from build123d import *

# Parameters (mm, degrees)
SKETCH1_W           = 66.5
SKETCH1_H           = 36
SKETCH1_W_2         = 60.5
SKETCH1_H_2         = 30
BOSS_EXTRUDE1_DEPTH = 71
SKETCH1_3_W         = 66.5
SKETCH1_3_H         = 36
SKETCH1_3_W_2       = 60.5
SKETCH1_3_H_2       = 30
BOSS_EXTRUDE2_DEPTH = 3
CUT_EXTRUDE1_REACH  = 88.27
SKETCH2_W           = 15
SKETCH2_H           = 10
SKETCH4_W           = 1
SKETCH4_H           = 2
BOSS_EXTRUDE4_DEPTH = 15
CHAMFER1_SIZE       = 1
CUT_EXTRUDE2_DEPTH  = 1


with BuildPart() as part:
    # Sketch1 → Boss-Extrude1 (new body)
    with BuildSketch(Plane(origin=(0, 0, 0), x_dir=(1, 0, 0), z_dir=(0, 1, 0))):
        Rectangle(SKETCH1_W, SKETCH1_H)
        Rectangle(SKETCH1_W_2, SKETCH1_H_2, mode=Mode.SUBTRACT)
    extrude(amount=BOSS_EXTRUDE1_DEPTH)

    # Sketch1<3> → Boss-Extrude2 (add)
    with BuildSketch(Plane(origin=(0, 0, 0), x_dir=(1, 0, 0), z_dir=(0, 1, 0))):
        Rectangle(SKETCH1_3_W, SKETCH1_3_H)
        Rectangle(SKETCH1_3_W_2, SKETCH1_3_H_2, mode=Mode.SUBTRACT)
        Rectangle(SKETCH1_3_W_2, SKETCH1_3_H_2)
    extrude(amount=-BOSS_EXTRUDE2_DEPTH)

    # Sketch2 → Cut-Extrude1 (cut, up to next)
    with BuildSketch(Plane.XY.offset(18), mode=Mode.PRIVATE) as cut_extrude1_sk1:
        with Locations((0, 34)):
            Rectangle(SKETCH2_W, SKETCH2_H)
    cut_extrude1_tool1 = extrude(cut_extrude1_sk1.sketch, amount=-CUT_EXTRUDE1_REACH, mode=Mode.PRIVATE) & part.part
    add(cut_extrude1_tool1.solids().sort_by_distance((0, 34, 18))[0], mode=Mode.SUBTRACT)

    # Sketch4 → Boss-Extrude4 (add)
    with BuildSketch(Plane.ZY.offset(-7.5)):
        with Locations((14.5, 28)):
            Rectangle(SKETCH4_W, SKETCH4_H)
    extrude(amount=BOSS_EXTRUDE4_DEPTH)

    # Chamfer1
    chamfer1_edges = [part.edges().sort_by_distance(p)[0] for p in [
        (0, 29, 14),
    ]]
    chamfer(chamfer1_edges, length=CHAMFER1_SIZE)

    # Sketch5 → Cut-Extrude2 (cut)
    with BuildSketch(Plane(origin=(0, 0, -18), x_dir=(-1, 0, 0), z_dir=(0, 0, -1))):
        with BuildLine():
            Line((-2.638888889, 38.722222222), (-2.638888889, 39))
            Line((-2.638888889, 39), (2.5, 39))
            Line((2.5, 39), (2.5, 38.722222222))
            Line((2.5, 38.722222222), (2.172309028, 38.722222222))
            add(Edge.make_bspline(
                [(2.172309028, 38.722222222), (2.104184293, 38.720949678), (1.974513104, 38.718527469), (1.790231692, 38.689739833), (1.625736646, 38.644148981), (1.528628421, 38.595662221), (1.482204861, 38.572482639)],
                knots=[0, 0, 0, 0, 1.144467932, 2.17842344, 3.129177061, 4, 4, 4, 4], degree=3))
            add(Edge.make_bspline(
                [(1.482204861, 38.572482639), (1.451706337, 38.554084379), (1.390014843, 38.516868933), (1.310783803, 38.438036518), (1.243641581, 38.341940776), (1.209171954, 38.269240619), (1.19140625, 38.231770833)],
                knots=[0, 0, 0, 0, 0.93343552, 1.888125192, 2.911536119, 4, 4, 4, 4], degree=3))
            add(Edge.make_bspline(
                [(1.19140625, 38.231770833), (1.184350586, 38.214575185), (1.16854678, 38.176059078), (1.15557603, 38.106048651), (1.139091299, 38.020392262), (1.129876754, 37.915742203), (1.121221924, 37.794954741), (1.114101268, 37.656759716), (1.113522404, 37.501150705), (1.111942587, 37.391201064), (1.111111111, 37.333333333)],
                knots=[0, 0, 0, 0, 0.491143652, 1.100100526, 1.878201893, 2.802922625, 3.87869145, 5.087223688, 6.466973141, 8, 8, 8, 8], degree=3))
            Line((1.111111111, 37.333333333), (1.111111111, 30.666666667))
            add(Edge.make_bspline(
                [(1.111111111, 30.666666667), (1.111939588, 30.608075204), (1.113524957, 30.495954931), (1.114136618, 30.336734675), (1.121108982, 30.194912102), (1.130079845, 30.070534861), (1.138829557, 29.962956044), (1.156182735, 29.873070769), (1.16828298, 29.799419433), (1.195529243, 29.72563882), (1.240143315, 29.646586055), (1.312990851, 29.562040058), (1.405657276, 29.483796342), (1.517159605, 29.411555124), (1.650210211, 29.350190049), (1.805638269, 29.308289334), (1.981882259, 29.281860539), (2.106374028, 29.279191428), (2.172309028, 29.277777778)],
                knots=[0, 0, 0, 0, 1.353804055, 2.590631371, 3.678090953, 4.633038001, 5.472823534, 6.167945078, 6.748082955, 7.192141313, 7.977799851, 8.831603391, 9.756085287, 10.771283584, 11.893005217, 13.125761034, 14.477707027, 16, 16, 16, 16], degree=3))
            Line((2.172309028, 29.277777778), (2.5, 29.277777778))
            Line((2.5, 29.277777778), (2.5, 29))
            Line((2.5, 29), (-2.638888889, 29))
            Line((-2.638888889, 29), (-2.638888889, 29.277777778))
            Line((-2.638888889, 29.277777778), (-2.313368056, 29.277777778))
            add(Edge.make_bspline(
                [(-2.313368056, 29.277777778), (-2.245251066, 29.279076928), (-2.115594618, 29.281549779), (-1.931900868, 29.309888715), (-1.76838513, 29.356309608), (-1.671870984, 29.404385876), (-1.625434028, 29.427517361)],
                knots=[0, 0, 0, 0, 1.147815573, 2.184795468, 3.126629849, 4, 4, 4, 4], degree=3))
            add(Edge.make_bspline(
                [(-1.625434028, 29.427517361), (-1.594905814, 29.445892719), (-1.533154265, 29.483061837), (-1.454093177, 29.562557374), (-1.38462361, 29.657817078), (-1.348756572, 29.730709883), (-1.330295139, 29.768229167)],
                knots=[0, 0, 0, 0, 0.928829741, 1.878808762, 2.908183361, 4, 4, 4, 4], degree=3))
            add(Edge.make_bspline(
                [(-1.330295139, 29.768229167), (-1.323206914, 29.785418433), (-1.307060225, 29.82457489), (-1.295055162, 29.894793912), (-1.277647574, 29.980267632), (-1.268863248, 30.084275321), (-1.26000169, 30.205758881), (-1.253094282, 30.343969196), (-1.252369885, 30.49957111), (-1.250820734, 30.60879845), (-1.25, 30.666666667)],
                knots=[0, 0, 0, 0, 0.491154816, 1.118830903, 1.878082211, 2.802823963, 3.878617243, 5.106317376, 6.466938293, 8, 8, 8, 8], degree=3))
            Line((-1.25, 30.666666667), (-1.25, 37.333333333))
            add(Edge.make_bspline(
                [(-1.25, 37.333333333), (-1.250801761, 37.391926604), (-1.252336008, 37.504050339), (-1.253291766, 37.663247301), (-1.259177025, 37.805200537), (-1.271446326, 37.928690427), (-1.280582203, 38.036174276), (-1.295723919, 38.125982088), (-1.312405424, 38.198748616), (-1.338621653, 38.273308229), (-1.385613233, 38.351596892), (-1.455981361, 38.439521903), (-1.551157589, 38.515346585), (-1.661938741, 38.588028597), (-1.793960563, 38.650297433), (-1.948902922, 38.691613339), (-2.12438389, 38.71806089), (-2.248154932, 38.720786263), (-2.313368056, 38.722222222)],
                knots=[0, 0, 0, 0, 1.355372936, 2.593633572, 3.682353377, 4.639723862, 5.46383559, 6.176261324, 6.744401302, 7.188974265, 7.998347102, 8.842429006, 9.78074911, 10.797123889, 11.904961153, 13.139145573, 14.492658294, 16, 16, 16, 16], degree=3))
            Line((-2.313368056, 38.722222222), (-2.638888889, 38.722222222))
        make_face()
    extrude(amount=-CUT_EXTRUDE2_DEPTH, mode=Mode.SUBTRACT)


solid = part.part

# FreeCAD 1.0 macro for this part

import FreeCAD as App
import Part
import Sketcher
from FreeCAD import Vector
Q = App.Units.Quantity


def edges_at(feature, points):
    """Names of the edges that pass closest to the given points."""
    edges = feature.Shape.Edges
    near = lambda p: min(range(len(edges)), key=lambda i: edges[i].distToShape(Part.Vertex(*p))[0])
    return sorted({f"Edge{near(p) + 1}" for p in points})

doc = App.newDocument("Part")
body = doc.addObject("PartDesign::Body", "Body")

# Sketch on XZ plane
sketch1 = doc.addObject("Sketcher::SketchObject", "Sketch")
body.addObject(sketch1)
sketch1.AttachmentSupport = (doc.XZ_Plane, [""])
sketch1.MapMode = "FlatFace"
sketch1.addGeometry([
    Part.LineSegment(Vector(-33.25, -18, 0), Vector(-33.25, 18, 0)),  # 0
    Part.LineSegment(Vector(-33.25, 18, 0), Vector(33.25, 18, 0)),  # 1
    Part.LineSegment(Vector(33.25, 18, 0), Vector(33.25, -18, 0)),  # 2
    Part.LineSegment(Vector(33.25, -18, 0), Vector(-33.25, -18, 0)),  # 3
    Part.LineSegment(Vector(30.25, 15, 0), Vector(-30.25, 15, 0)),  # 4
    Part.LineSegment(Vector(-30.25, 15, 0), Vector(-30.25, -15, 0)),  # 5
    Part.LineSegment(Vector(-30.25, -15, 0), Vector(30.25, -15, 0)),  # 6
    Part.LineSegment(Vector(30.25, -15, 0), Vector(30.25, 15, 0)),  # 7
], False)
sketch1.addConstraint([
    Sketcher.Constraint("Coincident", 0, 2, 1, 1),
    Sketcher.Constraint("Coincident", 1, 2, 2, 1),
    Sketcher.Constraint("Coincident", 2, 2, 3, 1),
    Sketcher.Constraint("Coincident", 3, 2, 0, 1),
    Sketcher.Constraint("Coincident", 4, 2, 5, 1),
    Sketcher.Constraint("Coincident", 5, 2, 6, 1),
    Sketcher.Constraint("Coincident", 6, 2, 7, 1),
    Sketcher.Constraint("Coincident", 7, 2, 4, 1),
    Sketcher.Constraint("Vertical", 0),
    Sketcher.Constraint("Horizontal", 1),
    Sketcher.Constraint("Vertical", 2),
    Sketcher.Constraint("Horizontal", 3),
    Sketcher.Constraint("Horizontal", 4),
    Sketcher.Constraint("Vertical", 5),
    Sketcher.Constraint("Horizontal", 6),
    Sketcher.Constraint("Vertical", 7),
    Sketcher.Constraint("Symmetric", 0, 2, 2, 2, -1, 1),
    Sketcher.Constraint("Symmetric", 4, 2, 6, 2, -1, 1),
    Sketcher.Constraint("DistanceY", 0, 1, 0, 2, Q("36 mm")),
    Sketcher.Constraint("DistanceY", 5, 2, 5, 1, Q("30 mm")),
    Sketcher.Constraint("DistanceX", 1, 1, 1, 2, Q("66.5 mm")),
    Sketcher.Constraint("DistanceX", 4, 2, 4, 1, Q("60.5 mm")),
])
pad1 = doc.addObject("PartDesign::Pad", "Pad")
body.addObject(pad1)
pad1.Profile = sketch1
pad1.Length = 71
pad1.Reversed = True

# Sketch on XZ plane
sketch2 = doc.addObject("Sketcher::SketchObject", "Sketch001")
body.addObject(sketch2)
sketch2.AttachmentSupport = (doc.XZ_Plane, [""])
sketch2.MapMode = "FlatFace"
sketch2.addGeometry([
    Part.LineSegment(Vector(-33.25, -18, 0), Vector(-33.25, 18, 0)),
    Part.LineSegment(Vector(-33.25, 18, 0), Vector(33.25, 18, 0)),
    Part.LineSegment(Vector(33.25, 18, 0), Vector(33.25, -18, 0)),
    Part.LineSegment(Vector(33.25, -18, 0), Vector(-33.25, -18, 0)),
], False)
sketch2.addConstraint([
    Sketcher.Constraint("Coincident", 0, 2, 1, 1),
    Sketcher.Constraint("Coincident", 1, 2, 2, 1),
    Sketcher.Constraint("Coincident", 2, 2, 3, 1),
    Sketcher.Constraint("Coincident", 3, 2, 0, 1),
    Sketcher.Constraint("Vertical", 0),
    Sketcher.Constraint("Horizontal", 1),
    Sketcher.Constraint("Vertical", 2),
    Sketcher.Constraint("Horizontal", 3),
    Sketcher.Constraint("Symmetric", 0, 2, 2, 2, -1, 1),
    Sketcher.Constraint("DistanceY", 0, 1, 0, 2, Q("36 mm")),
    Sketcher.Constraint("DistanceX", 1, 1, 1, 2, Q("66.5 mm")),
])
pad2 = doc.addObject("PartDesign::Pad", "Pad001")
body.addObject(pad2)
pad2.Profile = sketch2
pad2.Length = 3

# Sketch on XY plane
sketch3 = doc.addObject("Sketcher::SketchObject", "Sketch002")
body.addObject(sketch3)
sketch3.AttachmentSupport = (doc.XY_Plane, [""])
sketch3.MapMode = "FlatFace"
sketch3.AttachmentOffset = App.Placement(Vector(0, 0, 18), App.Rotation())
sketch3.addGeometry([
    Part.LineSegment(Vector(-7.5, 39, 0), Vector(-7.5, 29, 0)),
    Part.LineSegment(Vector(-7.5, 29, 0), Vector(7.5, 29, 0)),
    Part.LineSegment(Vector(7.5, 29, 0), Vector(7.5, 39, 0)),
    Part.LineSegment(Vector(7.5, 39, 0), Vector(-7.5, 39, 0)),
], False)
sketch3.addConstraint([
    Sketcher.Constraint("Coincident", 0, 2, 1, 1),
    Sketcher.Constraint("Coincident", 1, 2, 2, 1),
    Sketcher.Constraint("Coincident", 2, 2, 3, 1),
    Sketcher.Constraint("Coincident", 3, 2, 0, 1),
    Sketcher.Constraint("Vertical", 0),
    Sketcher.Constraint("Horizontal", 1),
    Sketcher.Constraint("Vertical", 2),
    Sketcher.Constraint("Horizontal", 3),
    Sketcher.Constraint("DistanceX", 1, 1, 1, 2, Q("15 mm")),
    Sketcher.Constraint("DistanceY", 0, 2, 0, 1, Q("10 mm")),
    Sketcher.Constraint("DistanceY", -1, 1, 0, 2, Q("29 mm")),
    Sketcher.Constraint("DistanceX", 0, 2, -1, 1, Q("7.5 mm")),
])
pocket1 = doc.addObject("PartDesign::Pocket", "Pocket")
body.addObject(pocket1)
pocket1.Profile = sketch3
pocket1.Type = "UpToFirst"

# Sketch on YZ plane
sketch4 = doc.addObject("Sketcher::SketchObject", "Sketch003")
body.addObject(sketch4)
sketch4.AttachmentSupport = (doc.YZ_Plane, [""])
sketch4.MapMode = "FlatFace"
sketch4.AttachmentOffset = App.Placement(Vector(0, 0, 7.5), App.Rotation())
sketch4.addGeometry([
    Part.LineSegment(Vector(29, 14, 0), Vector(27, 14, 0)),
    Part.LineSegment(Vector(27, 14, 0), Vector(27, 15, 0)),
    Part.LineSegment(Vector(27, 15, 0), Vector(29, 15, 0)),
    Part.LineSegment(Vector(29, 15, 0), Vector(29, 14, 0)),
], False)
sketch4.addConstraint([
    Sketcher.Constraint("Coincident", 0, 2, 1, 1),
    Sketcher.Constraint("Coincident", 1, 2, 2, 1),
    Sketcher.Constraint("Coincident", 2, 2, 3, 1),
    Sketcher.Constraint("Coincident", 3, 2, 0, 1),
    Sketcher.Constraint("Horizontal", 0),
    Sketcher.Constraint("Vertical", 1),
    Sketcher.Constraint("Horizontal", 2),
    Sketcher.Constraint("Vertical", 3),
    Sketcher.Constraint("DistanceX", 0, 2, 0, 1, Q("2 mm")),
    Sketcher.Constraint("DistanceY", 1, 1, 1, 2, Q("1 mm")),
    Sketcher.Constraint("DistanceX", -1, 1, 0, 2, Q("27 mm")),
    Sketcher.Constraint("DistanceY", -1, 1, 0, 2, Q("14 mm")),
])
pad3 = doc.addObject("PartDesign::Pad", "Pad002")
body.addObject(pad3)
pad3.Profile = sketch4
pad3.Length = 15
pad3.Reversed = True
doc.recompute()

chamfer = doc.addObject("PartDesign::Chamfer", "Chamfer")
body.addObject(chamfer)
chamfer.Base = (pad3, edges_at(pad3, [(0, 29, 14)]))
chamfer.Size = 1

# Sketch on XY plane
sketch5 = doc.addObject("Sketcher::SketchObject", "Sketch004")
body.addObject(sketch5)
sketch5.AttachmentSupport = (doc.XY_Plane, [""])
sketch5.MapMode = "FlatFace"
sketch5.AttachmentOffset = App.Placement(Vector(0, 0, -18), App.Rotation())
sketch5.addGeometry([
    Part.LineSegment(Vector(2.638889, 39, 0), Vector(2.638889, 38.722222, 0)),  # 0
    Part.LineSegment(Vector(2.638889, 38.722222, 0), Vector(2.313368, 38.722222, 0)),  # 1
    Part.BSplineCurve([Vector(1.25, 37.333333, 0), Vector(1.250802, 37.391927, 0), Vector(1.252336, 37.50405, 0), Vector(1.253292, 37.663247, 0), Vector(1.259177, 37.805201, 0), Vector(1.271446, 37.92869, 0), Vector(1.280582, 38.036174, 0), Vector(1.295724, 38.125982, 0), Vector(1.312405, 38.198749, 0), Vector(1.338622, 38.273308, 0), Vector(1.385613, 38.351597, 0), Vector(1.455981, 38.439522, 0), Vector(1.551158, 38.515347, 0), Vector(1.661939, 38.588029, 0), Vector(1.793961, 38.650297, 0), Vector(1.948903, 38.691613, 0), Vector(2.124384, 38.718061, 0), Vector(2.248155, 38.720786, 0), Vector(2.313368, 38.722222, 0)], [4, 1, 1, 1, 1, 1, 1, 1, 1, 1, 1, 1, 1, 1, 1, 1, 4], [0, 1.355372936, 2.593633572, 3.682353377, 4.639723862, 5.46383559, 6.176261324, 6.744401302, 7.188974265, 7.998347102, 8.842429006, 9.78074911, 10.797123889, 11.904961153, 13.139145573, 14.492658294, 16], False, 3, [1, 1, 1, 1, 1, 1, 1, 1, 1, 1, 1, 1, 1, 1, 1, 1, 1, 1, 1], False),  # 2
    Part.LineSegment(Vector(1.25, 37.333333, 0), Vector(1.25, 30.666667, 0)),  # 3
    Part.BSplineCurve([Vector(1.330295, 29.768229, 0), Vector(1.323207, 29.785418, 0), Vector(1.30706, 29.824575, 0), Vector(1.295055, 29.894794, 0), Vector(1.277648, 29.980268, 0), Vector(1.268863, 30.084275, 0), Vector(1.260002, 30.205759, 0), Vector(1.253094, 30.343969, 0), Vector(1.25237, 30.499571, 0), Vector(1.250821, 30.608798, 0), Vector(1.25, 30.666667, 0)], [4, 1, 1, 1, 1, 1, 1, 1, 4], [0, 0.491154816, 1.118830903, 1.878082211, 2.802823963, 3.878617243, 5.106317376, 6.466938293, 8], False, 3, [1, 1, 1, 1, 1, 1, 1, 1, 1, 1, 1], False),  # 4
    Part.BSplineCurve([Vector(1.625434, 29.427517, 0), Vector(1.594906, 29.445893, 0), Vector(1.533154, 29.483062, 0), Vector(1.454093, 29.562557, 0), Vector(1.384624, 29.657817, 0), Vector(1.348757, 29.73071, 0), Vector(1.330295, 29.768229, 0)], [4, 1, 1, 1, 4], [0, 0.928829741, 1.878808762, 2.908183361, 4], False, 3, [1, 1, 1, 1, 1, 1, 1], False),  # 5
    Part.BSplineCurve([Vector(2.313368, 29.277778, 0), Vector(2.245251, 29.279077, 0), Vector(2.115595, 29.28155, 0), Vector(1.931901, 29.309889, 0), Vector(1.768385, 29.35631, 0), Vector(1.671871, 29.404386, 0), Vector(1.625434, 29.427517, 0)], [4, 1, 1, 1, 4], [0, 1.147815573, 2.184795468, 3.126629849, 4], False, 3, [1, 1, 1, 1, 1, 1, 1], False),  # 6
    Part.LineSegment(Vector(2.313368, 29.277778, 0), Vector(2.638889, 29.277778, 0)),  # 7
    Part.LineSegment(Vector(2.638889, 29.277778, 0), Vector(2.638889, 29, 0)),  # 8
    Part.LineSegment(Vector(2.638889, 29, 0), Vector(-2.5, 29, 0)),  # 9
    Part.LineSegment(Vector(-2.5, 29, 0), Vector(-2.5, 29.277778, 0)),  # 10
    Part.LineSegment(Vector(-2.5, 29.277778, 0), Vector(-2.172309, 29.277778, 0)),  # 11
    Part.BSplineCurve([Vector(-1.111111, 30.666667, 0), Vector(-1.11194, 30.608075, 0), Vector(-1.113525, 30.495955, 0), Vector(-1.114137, 30.336735, 0), Vector(-1.121109, 30.194912, 0), Vector(-1.13008, 30.070535, 0), Vector(-1.13883, 29.962956, 0), Vector(-1.156183, 29.873071, 0), Vector(-1.168283, 29.799419, 0), Vector(-1.195529, 29.725639, 0), Vector(-1.240143, 29.646586, 0), Vector(-1.312991, 29.56204, 0), Vector(-1.405657, 29.483796, 0), Vector(-1.51716, 29.411555, 0), Vector(-1.65021, 29.35019, 0), Vector(-1.805638, 29.308289, 0), Vector(-1.981882, 29.281861, 0), Vector(-2.106374, 29.279191, 0), Vector(-2.172309, 29.277778, 0)], [4, 1, 1, 1, 1, 1, 1, 1, 1, 1, 1, 1, 1, 1, 1, 1, 4], [0, 1.353804055, 2.590631371, 3.678090953, 4.633038001, 5.472823534, 6.167945078, 6.748082955, 7.192141313, 7.977799851, 8.831603391, 9.756085287, 10.771283584, 11.893005217, 13.125761034, 14.477707027, 16], False, 3, [1, 1, 1, 1, 1, 1, 1, 1, 1, 1, 1, 1, 1, 1, 1, 1, 1, 1, 1], False),  # 12
    Part.LineSegment(Vector(-1.111111, 30.666667, 0), Vector(-1.111111, 37.333333, 0)),  # 13
    Part.BSplineCurve([Vector(-1.191406, 38.231771, 0), Vector(-1.184351, 38.214575, 0), Vector(-1.168547, 38.176059, 0), Vector(-1.155576, 38.106049, 0), Vector(-1.139091, 38.020392, 0), Vector(-1.129877, 37.915742, 0), Vector(-1.121222, 37.794955, 0), Vector(-1.114101, 37.65676, 0), Vector(-1.113522, 37.501151, 0), Vector(-1.111943, 37.391201, 0), Vector(-1.111111, 37.333333, 0)], [4, 1, 1, 1, 1, 1, 1, 1, 4], [0, 0.491143652, 1.100100526, 1.878201893, 2.802922625, 3.87869145, 5.087223688, 6.466973141, 8], False, 3, [1, 1, 1, 1, 1, 1, 1, 1, 1, 1, 1], False),  # 14
    Part.BSplineCurve([Vector(-1.482205, 38.572483, 0), Vector(-1.451706, 38.554084, 0), Vector(-1.390015, 38.516869, 0), Vector(-1.310784, 38.438037, 0), Vector(-1.243642, 38.341941, 0), Vector(-1.209172, 38.269241, 0), Vector(-1.191406, 38.231771, 0)], [4, 1, 1, 1, 4], [0, 0.93343552, 1.888125192, 2.911536119, 4], False, 3, [1, 1, 1, 1, 1, 1, 1], False),  # 15
    Part.BSplineCurve([Vector(-2.172309, 38.722222, 0), Vector(-2.104184, 38.72095, 0), Vector(-1.974513, 38.718527, 0), Vector(-1.790232, 38.68974, 0), Vector(-1.625737, 38.644149, 0), Vector(-1.528628, 38.595662, 0), Vector(-1.482205, 38.572483, 0)], [4, 1, 1, 1, 4], [0, 1.144467932, 2.17842344, 3.129177061, 4], False, 3, [1, 1, 1, 1, 1, 1, 1], False),  # 16
    Part.LineSegment(Vector(-2.172309, 38.722222, 0), Vector(-2.5, 38.722222, 0)),  # 17
    Part.LineSegment(Vector(-2.5, 38.722222, 0), Vector(-2.5, 39, 0)),  # 18
    Part.LineSegment(Vector(-2.5, 39, 0), Vector(2.638889, 39, 0)),  # 19
], False)
sketch5.addConstraint([
    Sketcher.Constraint("Block", 2),
    Sketcher.Constraint("Block", 4),
    Sketcher.Constraint("Block", 5),
    Sketcher.Constraint("Block", 6),
    Sketcher.Constraint("Block", 12),
    Sketcher.Constraint("Block", 14),
    Sketcher.Constraint("Block", 15),
    Sketcher.Constraint("Block", 16),
    Sketcher.Constraint("Coincident", 0, 2, 1, 1),
    Sketcher.Constraint("Coincident", 1, 2, 2, 2),
    Sketcher.Constraint("Coincident", 2, 1, 3, 1),
    Sketcher.Constraint("Coincident", 3, 2, 4, 2),
    Sketcher.Constraint("Coincident", 6, 1, 7, 1),
    Sketcher.Constraint("Coincident", 7, 2, 8, 1),
    Sketcher.Constraint("Coincident", 8, 2, 9, 1),
    Sketcher.Constraint("Coincident", 9, 2, 10, 1),
    Sketcher.Constraint("Coincident", 10, 2, 11, 1),
    Sketcher.Constraint("Coincident", 11, 2, 12, 2),
    Sketcher.Constraint("Coincident", 12, 1, 13, 1),
    Sketcher.Constraint("Coincident", 13, 2, 14, 2),
    Sketcher.Constraint("Coincident", 16, 1, 17, 1),
    Sketcher.Constraint("Coincident", 17, 2, 18, 1),
    Sketcher.Constraint("Coincident", 18, 2, 19, 1),
    Sketcher.Constraint("Coincident", 19, 2, 0, 1),
    Sketcher.Constraint("Vertical", 0),
    Sketcher.Constraint("Horizontal", 1),
    Sketcher.Constraint("Horizontal", 7),
    Sketcher.Constraint("Vertical", 8),
    Sketcher.Constraint("Horizontal", 9),
    Sketcher.Constraint("Vertical", 10),
    Sketcher.Constraint("Horizontal", 11),
    Sketcher.Constraint("Horizontal", 17),
    Sketcher.Constraint("Vertical", 18),
    Sketcher.Constraint("Horizontal", 19),
    Sketcher.Constraint("Vertical", 0, 2, 7, 2),
    Sketcher.Constraint("Vertical", 10, 2, 17, 2),
    Sketcher.Constraint("Equal", 0, 8),
    Sketcher.Constraint("DistanceY", -1, 1, 8, 2, Q("29 mm")),
    Sketcher.Constraint("DistanceX", 9, 2, -1, 1, Q("2.5 mm")),
    Sketcher.Constraint("DistanceX", 13, 2, 0, 2, Q("3.75 mm")),
])
pocket2 = doc.addObject("PartDesign::Pocket", "Pocket001")
body.addObject(pocket2)
pocket2.Profile = sketch5
pocket2.Length = 1
pocket2.Reversed = True

doc.recompute()
